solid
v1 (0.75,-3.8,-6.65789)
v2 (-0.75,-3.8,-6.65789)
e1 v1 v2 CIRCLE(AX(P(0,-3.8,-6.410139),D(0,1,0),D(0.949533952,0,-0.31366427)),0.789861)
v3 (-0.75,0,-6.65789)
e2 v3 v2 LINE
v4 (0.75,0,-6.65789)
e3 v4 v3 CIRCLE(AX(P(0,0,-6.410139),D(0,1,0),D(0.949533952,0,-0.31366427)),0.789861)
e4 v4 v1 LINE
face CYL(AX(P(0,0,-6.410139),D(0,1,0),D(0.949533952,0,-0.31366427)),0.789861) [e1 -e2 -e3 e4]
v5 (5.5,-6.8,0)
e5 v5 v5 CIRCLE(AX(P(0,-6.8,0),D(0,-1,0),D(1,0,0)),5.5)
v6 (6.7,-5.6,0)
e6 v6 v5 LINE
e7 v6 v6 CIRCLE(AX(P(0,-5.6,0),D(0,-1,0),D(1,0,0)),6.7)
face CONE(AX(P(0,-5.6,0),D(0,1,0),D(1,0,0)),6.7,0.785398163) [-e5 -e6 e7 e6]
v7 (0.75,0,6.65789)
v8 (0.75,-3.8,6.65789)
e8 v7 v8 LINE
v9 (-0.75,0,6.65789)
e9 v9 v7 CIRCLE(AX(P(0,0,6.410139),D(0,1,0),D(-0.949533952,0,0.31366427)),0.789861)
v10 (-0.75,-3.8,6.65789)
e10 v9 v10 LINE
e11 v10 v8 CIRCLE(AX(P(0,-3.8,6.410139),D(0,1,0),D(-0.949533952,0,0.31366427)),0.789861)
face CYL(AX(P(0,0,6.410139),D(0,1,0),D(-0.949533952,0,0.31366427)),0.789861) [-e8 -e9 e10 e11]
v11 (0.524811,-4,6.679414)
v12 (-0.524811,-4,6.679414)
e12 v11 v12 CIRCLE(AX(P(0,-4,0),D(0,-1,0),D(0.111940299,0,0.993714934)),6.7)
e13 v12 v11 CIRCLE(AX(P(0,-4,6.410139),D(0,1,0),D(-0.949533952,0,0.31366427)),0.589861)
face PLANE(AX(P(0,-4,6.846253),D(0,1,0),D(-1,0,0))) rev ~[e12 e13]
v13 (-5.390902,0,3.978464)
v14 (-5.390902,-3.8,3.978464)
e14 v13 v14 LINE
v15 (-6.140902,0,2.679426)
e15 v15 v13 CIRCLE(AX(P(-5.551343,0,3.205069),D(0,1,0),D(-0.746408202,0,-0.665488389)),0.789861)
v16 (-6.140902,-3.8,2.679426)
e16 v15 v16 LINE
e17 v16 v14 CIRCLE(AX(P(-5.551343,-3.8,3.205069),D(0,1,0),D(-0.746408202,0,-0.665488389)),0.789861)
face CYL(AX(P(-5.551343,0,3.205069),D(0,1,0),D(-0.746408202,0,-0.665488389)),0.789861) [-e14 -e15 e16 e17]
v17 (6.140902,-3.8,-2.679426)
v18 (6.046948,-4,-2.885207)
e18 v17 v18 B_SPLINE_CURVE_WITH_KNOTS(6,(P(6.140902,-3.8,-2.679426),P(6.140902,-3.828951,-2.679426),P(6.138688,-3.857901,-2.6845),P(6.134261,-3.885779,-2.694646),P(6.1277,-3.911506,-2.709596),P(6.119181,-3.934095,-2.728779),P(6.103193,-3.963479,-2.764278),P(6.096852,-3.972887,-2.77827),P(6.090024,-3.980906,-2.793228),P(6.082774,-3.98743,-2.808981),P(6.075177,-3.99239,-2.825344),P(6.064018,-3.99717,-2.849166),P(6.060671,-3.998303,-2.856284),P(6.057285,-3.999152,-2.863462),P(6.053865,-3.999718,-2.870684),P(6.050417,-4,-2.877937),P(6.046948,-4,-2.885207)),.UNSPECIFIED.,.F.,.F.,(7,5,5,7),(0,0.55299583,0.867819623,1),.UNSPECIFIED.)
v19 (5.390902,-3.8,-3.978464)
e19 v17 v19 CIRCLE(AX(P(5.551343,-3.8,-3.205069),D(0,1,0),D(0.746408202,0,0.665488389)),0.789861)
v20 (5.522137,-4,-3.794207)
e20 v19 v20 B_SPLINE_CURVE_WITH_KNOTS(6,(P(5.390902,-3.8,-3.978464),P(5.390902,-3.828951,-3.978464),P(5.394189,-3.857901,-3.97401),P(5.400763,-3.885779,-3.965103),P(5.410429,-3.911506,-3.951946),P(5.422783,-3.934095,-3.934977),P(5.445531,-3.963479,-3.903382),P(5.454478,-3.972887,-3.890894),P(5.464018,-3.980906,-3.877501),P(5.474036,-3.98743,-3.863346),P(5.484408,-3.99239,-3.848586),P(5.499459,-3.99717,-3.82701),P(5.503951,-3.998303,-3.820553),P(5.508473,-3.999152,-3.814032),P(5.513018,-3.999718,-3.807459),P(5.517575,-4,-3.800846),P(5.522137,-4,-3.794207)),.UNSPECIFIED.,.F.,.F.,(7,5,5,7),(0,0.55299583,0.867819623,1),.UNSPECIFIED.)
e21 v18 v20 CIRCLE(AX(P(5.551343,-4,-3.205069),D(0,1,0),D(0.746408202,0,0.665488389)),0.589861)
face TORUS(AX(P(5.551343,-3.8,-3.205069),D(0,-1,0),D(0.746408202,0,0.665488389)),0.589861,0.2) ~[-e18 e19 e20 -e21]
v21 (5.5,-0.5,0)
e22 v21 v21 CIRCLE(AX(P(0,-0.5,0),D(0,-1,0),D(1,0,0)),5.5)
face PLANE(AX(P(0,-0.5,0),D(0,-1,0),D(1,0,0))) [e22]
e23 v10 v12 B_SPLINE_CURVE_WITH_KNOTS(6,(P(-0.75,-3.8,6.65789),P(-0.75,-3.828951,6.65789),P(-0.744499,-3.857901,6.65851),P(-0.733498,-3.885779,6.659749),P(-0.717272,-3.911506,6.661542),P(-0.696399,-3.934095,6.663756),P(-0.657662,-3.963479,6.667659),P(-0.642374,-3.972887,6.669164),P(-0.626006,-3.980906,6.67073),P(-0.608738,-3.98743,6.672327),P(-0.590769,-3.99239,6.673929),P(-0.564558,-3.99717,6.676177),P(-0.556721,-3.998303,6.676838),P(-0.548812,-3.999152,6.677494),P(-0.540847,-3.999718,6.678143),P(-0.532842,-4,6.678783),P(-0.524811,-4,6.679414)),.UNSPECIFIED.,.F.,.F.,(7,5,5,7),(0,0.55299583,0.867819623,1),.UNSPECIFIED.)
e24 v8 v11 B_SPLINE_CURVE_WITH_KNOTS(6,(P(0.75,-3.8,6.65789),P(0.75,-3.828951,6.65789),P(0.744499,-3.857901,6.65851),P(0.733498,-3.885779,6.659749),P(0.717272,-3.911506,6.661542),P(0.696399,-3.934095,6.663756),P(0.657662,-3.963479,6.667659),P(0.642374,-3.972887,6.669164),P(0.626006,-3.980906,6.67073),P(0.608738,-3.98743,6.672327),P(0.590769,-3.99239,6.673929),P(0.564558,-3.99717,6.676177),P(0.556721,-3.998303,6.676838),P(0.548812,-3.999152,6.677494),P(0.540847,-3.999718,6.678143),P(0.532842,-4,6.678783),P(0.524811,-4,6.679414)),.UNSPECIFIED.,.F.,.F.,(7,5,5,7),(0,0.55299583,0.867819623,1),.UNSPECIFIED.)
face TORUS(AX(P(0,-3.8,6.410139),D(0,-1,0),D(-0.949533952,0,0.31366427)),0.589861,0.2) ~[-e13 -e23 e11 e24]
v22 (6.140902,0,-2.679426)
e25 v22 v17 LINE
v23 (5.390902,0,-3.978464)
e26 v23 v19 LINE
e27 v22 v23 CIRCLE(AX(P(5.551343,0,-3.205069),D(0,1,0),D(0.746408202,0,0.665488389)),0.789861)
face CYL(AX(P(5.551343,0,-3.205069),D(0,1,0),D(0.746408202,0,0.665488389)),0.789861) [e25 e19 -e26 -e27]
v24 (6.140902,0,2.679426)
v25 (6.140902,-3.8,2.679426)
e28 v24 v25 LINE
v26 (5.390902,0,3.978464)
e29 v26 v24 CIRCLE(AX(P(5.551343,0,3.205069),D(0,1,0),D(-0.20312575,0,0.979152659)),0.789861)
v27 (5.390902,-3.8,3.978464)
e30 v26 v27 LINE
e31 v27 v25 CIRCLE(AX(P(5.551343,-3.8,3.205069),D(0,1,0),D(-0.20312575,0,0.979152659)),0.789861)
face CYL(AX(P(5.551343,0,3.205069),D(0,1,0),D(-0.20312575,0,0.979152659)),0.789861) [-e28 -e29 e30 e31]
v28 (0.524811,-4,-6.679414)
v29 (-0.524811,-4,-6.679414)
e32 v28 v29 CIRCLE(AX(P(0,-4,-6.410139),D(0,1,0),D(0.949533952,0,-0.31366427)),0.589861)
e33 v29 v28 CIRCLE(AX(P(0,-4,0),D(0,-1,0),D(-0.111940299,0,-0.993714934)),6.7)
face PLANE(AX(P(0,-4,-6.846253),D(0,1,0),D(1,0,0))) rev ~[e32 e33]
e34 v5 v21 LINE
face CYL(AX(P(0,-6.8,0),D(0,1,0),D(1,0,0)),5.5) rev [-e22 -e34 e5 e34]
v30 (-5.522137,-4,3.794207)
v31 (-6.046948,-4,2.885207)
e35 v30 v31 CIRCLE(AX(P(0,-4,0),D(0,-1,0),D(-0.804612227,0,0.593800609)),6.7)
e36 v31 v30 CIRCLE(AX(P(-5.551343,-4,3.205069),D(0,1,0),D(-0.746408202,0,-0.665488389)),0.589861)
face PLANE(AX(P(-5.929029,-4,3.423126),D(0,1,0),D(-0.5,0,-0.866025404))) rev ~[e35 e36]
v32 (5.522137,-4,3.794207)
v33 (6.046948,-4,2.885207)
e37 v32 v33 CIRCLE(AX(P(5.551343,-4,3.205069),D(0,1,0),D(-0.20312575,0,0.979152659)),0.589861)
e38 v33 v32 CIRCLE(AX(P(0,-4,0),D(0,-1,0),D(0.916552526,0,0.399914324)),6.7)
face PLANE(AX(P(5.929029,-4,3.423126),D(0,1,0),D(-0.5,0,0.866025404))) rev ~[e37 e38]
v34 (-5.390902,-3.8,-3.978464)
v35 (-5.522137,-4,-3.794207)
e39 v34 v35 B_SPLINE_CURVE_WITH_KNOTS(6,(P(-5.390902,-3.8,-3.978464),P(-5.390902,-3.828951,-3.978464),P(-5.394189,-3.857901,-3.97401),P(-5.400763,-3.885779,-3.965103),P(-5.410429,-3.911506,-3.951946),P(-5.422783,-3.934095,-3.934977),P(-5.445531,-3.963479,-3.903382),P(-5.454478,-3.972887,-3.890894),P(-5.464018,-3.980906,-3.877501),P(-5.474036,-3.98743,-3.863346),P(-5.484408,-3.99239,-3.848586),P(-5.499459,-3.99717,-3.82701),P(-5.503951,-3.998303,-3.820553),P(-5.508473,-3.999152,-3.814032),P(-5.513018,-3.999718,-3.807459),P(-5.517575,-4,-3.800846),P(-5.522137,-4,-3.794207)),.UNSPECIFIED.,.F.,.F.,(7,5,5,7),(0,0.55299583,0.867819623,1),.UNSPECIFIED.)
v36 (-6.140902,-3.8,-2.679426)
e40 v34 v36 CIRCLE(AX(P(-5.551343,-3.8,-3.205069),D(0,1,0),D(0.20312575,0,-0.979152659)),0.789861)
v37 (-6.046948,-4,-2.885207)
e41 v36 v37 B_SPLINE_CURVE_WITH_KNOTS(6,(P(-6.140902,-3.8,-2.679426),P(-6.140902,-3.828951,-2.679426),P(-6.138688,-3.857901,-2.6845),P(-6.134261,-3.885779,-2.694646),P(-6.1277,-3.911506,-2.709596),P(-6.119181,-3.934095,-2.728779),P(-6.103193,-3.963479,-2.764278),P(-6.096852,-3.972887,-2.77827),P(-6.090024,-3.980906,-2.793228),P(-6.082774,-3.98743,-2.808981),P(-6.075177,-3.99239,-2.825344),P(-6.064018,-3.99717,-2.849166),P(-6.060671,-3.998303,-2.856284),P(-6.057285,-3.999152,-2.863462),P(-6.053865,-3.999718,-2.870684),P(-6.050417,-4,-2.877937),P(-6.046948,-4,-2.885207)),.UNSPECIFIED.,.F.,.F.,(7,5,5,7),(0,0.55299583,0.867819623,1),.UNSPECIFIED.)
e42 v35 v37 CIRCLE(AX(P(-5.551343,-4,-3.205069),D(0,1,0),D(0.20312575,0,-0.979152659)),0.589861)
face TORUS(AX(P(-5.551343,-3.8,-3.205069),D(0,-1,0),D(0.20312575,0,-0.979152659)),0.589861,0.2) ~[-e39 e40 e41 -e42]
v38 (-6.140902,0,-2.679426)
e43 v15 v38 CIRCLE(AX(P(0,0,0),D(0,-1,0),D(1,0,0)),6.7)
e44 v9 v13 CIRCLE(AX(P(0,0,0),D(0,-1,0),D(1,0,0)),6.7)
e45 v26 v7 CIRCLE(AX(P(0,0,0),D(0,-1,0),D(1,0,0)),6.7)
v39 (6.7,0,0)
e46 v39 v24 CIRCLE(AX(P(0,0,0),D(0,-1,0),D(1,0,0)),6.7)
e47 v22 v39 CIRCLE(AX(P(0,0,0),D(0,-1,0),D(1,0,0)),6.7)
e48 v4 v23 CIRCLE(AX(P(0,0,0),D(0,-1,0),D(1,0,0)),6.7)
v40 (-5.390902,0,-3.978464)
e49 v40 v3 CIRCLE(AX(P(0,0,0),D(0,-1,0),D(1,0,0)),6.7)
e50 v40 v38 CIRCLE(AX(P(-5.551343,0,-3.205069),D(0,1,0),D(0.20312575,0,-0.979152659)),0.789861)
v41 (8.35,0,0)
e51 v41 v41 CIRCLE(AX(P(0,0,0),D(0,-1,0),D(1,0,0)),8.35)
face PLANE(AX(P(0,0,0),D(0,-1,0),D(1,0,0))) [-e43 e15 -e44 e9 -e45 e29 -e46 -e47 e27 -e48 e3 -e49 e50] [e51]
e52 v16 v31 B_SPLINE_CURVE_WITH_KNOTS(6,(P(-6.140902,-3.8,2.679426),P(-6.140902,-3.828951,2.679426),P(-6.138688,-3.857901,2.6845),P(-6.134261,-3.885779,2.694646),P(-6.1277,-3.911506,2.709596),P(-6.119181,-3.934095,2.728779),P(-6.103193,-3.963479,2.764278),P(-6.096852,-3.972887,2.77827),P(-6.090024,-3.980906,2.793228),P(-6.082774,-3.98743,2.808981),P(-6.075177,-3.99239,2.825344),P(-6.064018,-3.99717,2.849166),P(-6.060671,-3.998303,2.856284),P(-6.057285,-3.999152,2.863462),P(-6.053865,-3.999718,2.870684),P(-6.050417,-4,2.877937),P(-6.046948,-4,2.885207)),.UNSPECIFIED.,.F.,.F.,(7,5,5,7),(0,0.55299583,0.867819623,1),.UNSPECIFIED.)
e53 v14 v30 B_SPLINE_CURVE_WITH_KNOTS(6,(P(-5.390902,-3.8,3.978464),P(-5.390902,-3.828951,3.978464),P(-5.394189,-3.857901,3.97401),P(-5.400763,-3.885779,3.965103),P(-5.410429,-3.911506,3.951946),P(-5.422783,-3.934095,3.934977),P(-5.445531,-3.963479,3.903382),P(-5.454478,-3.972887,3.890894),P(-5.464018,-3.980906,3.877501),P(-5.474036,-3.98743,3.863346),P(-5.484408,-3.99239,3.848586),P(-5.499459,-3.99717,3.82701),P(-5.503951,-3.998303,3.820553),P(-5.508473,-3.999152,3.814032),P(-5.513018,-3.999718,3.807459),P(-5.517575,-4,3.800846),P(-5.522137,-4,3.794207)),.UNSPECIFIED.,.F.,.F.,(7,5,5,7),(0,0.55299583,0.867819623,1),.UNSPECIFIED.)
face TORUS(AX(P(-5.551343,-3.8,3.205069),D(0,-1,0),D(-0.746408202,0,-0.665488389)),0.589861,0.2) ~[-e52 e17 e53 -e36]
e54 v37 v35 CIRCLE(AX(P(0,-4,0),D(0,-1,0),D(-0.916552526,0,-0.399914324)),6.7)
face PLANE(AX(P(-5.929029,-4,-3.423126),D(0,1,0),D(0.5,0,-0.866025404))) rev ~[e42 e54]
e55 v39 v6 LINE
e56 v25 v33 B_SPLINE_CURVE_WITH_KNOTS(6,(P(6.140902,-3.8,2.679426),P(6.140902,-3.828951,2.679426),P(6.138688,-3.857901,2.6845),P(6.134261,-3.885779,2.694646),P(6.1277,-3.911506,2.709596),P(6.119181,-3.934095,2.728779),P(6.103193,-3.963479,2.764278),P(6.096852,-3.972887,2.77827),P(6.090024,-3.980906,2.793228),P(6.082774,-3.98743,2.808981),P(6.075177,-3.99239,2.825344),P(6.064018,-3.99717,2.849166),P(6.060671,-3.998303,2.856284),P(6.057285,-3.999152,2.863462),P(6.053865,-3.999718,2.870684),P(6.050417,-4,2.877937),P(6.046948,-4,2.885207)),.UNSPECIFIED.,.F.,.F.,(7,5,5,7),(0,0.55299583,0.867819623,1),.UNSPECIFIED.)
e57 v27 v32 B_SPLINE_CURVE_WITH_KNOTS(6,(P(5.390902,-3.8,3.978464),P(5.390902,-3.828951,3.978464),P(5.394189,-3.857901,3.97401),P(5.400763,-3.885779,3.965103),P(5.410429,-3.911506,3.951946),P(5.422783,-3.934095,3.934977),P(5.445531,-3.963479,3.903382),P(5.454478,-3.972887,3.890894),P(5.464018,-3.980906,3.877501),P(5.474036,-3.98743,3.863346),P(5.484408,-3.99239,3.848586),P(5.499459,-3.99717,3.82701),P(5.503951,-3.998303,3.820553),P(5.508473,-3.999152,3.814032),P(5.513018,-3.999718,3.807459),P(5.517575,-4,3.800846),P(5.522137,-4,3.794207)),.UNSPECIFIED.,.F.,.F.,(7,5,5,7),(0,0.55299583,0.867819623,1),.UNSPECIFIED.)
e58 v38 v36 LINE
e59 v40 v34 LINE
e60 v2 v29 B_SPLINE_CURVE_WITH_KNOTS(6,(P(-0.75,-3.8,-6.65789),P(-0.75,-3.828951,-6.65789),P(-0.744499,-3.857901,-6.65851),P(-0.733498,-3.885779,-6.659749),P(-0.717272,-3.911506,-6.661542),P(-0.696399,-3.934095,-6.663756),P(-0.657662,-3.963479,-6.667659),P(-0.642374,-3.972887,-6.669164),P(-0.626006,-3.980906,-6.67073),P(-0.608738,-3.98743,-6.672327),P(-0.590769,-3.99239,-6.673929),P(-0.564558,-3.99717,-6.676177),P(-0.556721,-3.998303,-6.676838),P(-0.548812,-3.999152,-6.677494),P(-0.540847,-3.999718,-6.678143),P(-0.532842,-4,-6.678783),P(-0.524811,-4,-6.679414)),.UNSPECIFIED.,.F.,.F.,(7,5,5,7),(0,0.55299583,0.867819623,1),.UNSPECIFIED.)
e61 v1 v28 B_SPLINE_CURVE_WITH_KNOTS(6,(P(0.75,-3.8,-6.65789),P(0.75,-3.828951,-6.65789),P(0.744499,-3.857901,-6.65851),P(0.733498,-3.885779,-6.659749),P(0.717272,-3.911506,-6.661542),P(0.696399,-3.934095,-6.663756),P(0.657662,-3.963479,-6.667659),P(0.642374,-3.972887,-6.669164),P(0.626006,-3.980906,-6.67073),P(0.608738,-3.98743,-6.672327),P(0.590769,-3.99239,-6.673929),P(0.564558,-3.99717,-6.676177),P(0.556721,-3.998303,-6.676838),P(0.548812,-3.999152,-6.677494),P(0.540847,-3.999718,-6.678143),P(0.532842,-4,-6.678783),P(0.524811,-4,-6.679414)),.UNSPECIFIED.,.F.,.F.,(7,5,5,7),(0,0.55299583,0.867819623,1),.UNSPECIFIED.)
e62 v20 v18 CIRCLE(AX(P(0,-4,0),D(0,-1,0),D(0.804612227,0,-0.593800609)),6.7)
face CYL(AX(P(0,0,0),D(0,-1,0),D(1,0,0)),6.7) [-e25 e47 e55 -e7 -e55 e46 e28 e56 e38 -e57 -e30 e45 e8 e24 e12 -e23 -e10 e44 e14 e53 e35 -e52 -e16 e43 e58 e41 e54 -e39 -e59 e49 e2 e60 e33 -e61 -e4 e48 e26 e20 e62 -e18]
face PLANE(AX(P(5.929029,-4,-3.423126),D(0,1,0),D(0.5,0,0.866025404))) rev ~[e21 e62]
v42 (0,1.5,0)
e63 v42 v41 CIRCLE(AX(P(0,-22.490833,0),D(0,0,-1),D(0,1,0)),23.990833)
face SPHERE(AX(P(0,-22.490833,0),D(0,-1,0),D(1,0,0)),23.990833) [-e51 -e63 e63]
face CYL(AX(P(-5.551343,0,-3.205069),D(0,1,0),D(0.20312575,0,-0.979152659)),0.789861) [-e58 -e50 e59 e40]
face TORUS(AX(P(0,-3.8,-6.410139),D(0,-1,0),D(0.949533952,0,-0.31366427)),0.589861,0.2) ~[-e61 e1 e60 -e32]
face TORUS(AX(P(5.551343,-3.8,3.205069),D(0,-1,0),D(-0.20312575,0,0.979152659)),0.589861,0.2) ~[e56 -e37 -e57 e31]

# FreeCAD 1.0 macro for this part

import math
import FreeCAD as App
import Part
import Sketcher

V = App.Vector
Q = App.Units.Quantity


def edges_at(feature, points):
    """Names of the edges that pass closest to the given points."""
    edges = feature.Shape.Edges
    near = lambda p: min(range(len(edges)), key=lambda i: edges[i].distToShape(Part.Vertex(*p))[0])
    return sorted({f"Edge{near(p) + 1}" for p in points})

doc = App.newDocument("Part")
body = doc.addObject("PartDesign::Body", "Body")

# Sketch on XY plane
sketch1 = body.newObject("Sketcher::SketchObject", "Sketch")
sketch1.AttachmentSupport = (doc.getObject("XY_Plane"), [""])
sketch1.MapMode = "FlatFace"
sketch1.addGeometry([
    Part.LineSegment(V(6.7, 0, 0), V(8.3, 0, 0)),  # 0
    Part.ArcOfCircle(Part.Circle(V(0, -22.5, 0), V(0, 0, 1), 24), math.radians(70), math.radians(90)),  # 1
    Part.LineSegment(V(0, 1.5, 0), V(0, -0.5, 0)),  # 2
    Part.LineSegment(V(0, -0.5, 0), V(5.5, -0.5, 0)),  # 3
    Part.LineSegment(V(5.5, -0.5, 0), V(5.5, -6.8, 0)),  # 4
    Part.LineSegment(V(5.5, -6.8, 0), V(6.7, -5.6, 0)),  # 5
    Part.LineSegment(V(6.7, -5.6, 0), V(6.7, 0, 0)),  # 6
], False)
sketch1.addConstraint([
    Sketcher.Constraint("Coincident", 0, 2, 1, 1),
    Sketcher.Constraint("Coincident", 1, 2, 2, 1),
    Sketcher.Constraint("Coincident", 2, 2, 3, 1),
    Sketcher.Constraint("Coincident", 3, 2, 4, 1),
    Sketcher.Constraint("Coincident", 4, 2, 5, 1),
    Sketcher.Constraint("Coincident", 5, 2, 6, 1),
    Sketcher.Constraint("Coincident", 6, 2, 0, 1),
    Sketcher.Constraint("Horizontal", 0),
    Sketcher.Constraint("Vertical", 2),
    Sketcher.Constraint("Horizontal", 3),
    Sketcher.Constraint("Vertical", 4),
    Sketcher.Constraint("Vertical", 6),
    Sketcher.Constraint("PointOnObject", 1, 3, -2),
    Sketcher.Constraint("PointOnObject", 0, 2, -1),
    Sketcher.Constraint("PointOnObject", 1, 2, -2),
    Sketcher.Constraint("DistanceY", 2, 2, 2, 1, 2.0),
    Sketcher.Constraint("Angle", 5, Q("45 deg")),
    Sketcher.Constraint("DistanceX", 3, 1, 3, 2, 5.5),
    Sketcher.Constraint("DistanceY", 4, 2, 4, 1, 6.3),
    Sketcher.Constraint("DistanceY", 6, 1, 6, 2, 5.6),
    Sketcher.Constraint("DistanceX", 0, 1, 0, 2, 1.65),
    Sketcher.Constraint("DistanceY", -1, 1, 1, 2, 1.5),
])
revolution = body.newObject("PartDesign::Revolution", "Revolution")
revolution.Profile = sketch1
revolution.ReferenceAxis = (sketch1, ["V_Axis"])
revolution.Angle = 360

# Sketch on XZ plane
sketch2 = body.newObject("Sketcher::SketchObject", "Sketch001")
sketch2.AttachmentSupport = (doc.getObject("XZ_Plane"), [""])
sketch2.MapMode = "FlatFace"
sketch2.addGeometry([
    Part.ArcOfCircle(Part.Circle(V(0, 6.4, 0), V(0, 0, 1), 0.8), math.radians(18), math.radians(162)),
    Part.ArcOfCircle(Part.Circle(V(0, 0, 0), V(0, 0, 1), 6.7), math.radians(83.57), math.radians(96.43)),
], False)
sketch2.addConstraint([
    Sketcher.Constraint("Coincident", 0, 1, 1, 1),
    Sketcher.Constraint("Coincident", 1, 2, 0, 2),
    Sketcher.Constraint("Coincident", 1, 3, -1, 1),
    Sketcher.Constraint("PointOnObject", 0, 3, -2),
    Sketcher.Constraint("Radius", 1, 6.7),
    Sketcher.Constraint("DistanceX", 1, 2, 0, 1, 1.5),
    Sketcher.Constraint("Radius", 0, 0.789861),
])
pad1 = body.newObject("PartDesign::Pad", "Pad")
pad1.Profile = sketch2
pad1.Length = 4
doc.recompute()

polarpattern = body.newObject("PartDesign::PolarPattern", "PolarPattern")
polarpattern.Originals = [pad1]
polarpattern.Axis = (doc.getObject("Y_Axis"), [""])
polarpattern.Angle = 360
polarpattern.Occurrences = 6
body.Tip = polarpattern
doc.recompute()

fillet = body.newObject("PartDesign::Fillet", "Fillet")
fillet.Base = (polarpattern, edges_at(polarpattern, [
    (0, -4, 7.2),
    (6.235, -4, 3.6),
    (6.235, -4, -3.6),
    (0, -4, -7.2),
    (-6.235, -4, -3.6),
    (-6.235, -4, 3.6),
]))
fillet.Radius = 0.2

doc.recompute()
